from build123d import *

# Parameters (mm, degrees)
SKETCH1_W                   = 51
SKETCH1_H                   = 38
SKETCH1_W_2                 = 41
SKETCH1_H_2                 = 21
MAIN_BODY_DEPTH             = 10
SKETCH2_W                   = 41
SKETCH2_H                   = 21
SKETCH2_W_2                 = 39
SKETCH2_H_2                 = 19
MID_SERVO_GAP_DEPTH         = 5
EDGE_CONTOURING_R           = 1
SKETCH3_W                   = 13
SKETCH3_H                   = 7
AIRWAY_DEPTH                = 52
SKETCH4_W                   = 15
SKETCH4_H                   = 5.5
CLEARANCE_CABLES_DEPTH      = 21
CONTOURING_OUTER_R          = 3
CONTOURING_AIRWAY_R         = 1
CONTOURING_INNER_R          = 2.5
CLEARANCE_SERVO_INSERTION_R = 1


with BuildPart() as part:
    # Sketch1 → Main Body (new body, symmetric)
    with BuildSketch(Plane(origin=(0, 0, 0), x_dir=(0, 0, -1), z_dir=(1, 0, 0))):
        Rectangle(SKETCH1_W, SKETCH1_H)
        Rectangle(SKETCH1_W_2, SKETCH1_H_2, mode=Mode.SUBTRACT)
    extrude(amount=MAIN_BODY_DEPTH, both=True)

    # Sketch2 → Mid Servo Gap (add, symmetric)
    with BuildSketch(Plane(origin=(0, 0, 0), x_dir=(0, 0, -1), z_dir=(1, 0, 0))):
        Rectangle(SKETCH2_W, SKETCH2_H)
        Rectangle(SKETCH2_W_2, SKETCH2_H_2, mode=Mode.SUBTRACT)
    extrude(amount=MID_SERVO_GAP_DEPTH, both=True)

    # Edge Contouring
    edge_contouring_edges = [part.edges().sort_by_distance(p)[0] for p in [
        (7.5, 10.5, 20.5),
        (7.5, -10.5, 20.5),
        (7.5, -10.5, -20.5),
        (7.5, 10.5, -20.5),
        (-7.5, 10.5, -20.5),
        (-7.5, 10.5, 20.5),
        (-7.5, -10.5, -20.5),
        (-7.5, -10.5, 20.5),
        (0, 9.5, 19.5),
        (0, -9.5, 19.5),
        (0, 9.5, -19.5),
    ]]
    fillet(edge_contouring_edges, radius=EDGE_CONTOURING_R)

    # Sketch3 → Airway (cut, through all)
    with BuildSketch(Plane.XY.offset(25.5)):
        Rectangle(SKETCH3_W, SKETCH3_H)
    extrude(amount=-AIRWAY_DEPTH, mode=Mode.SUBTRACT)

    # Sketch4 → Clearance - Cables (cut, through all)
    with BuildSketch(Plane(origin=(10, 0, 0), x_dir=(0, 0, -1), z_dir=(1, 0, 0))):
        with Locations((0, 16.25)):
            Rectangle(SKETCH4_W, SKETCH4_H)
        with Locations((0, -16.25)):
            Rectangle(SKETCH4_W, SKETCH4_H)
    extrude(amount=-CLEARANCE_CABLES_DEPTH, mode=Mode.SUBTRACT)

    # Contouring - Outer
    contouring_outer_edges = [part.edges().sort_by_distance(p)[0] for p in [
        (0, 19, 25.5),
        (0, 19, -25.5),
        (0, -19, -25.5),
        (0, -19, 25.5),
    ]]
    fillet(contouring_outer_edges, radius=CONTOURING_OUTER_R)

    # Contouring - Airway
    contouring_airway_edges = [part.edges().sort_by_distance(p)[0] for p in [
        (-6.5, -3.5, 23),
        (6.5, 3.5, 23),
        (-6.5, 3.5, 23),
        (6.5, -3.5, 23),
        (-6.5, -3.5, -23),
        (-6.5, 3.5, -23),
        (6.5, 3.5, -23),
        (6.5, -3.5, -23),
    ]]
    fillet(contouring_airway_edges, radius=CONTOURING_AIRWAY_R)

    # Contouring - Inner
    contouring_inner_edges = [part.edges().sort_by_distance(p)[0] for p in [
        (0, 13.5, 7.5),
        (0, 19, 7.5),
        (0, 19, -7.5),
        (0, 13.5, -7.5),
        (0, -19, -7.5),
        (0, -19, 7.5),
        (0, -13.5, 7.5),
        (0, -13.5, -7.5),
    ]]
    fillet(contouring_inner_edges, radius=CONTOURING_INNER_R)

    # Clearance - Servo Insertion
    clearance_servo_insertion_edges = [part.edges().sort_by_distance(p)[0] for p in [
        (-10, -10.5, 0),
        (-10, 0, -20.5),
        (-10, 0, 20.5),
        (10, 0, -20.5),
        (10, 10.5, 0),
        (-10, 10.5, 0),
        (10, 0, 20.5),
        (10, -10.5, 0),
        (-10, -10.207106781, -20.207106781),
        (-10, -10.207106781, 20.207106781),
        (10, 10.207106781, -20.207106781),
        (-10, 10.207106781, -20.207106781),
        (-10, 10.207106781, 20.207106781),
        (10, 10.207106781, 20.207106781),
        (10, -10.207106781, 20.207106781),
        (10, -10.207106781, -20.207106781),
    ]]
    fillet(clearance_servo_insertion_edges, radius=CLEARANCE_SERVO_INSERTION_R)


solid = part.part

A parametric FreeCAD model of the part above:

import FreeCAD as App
import Part
import Sketcher


def edges_at(feature, points):
    """Names of the edges that pass closest to the given points."""
    edges = feature.Shape.Edges
    near = lambda p: min(range(len(edges)), key=lambda i: edges[i].distToShape(Part.Vertex(*p))[0])
    return sorted({f"Edge{near(p) + 1}" for p in points})


def add_polygon(sketch, points):
    """Adds a closed chain of lines whose ends are joined by coincident constraints."""
    first, n = sketch.GeometryCount, len(points)
    for a, b in zip(points, points[1:] + points[:1]):
        sketch.addGeometry(Part.LineSegment(App.Vector(*a, 0), App.Vector(*b, 0)), False)
    for i in range(n):
        sketch.addConstraint(Sketcher.Constraint("Coincident", first + i, 2, first + (i + 1) % n, 1))

doc = App.newDocument("Part")
body = doc.addObject("PartDesign::Body", "Body")

# Sketch on YZ plane
sketch1 = body.newObject("Sketcher::SketchObject", "Sketch")
sketch1.AttachmentSupport = (doc.getObject("YZ_Plane"), [""])
sketch1.MapMode = "FlatFace"
add_polygon(sketch1, [(19, 25.5), (-19, 25.5), (-19, -25.5), (19, -25.5)])  # lines 0-3
add_polygon(sketch1, [(-10.5, -20.5), (-10.5, 20.5), (10.5, 20.5), (10.5, -20.5)])  # lines 4-7
sketch1.addConstraint(Sketcher.Constraint("Horizontal", 0))
sketch1.addConstraint(Sketcher.Constraint("Vertical", 1))
sketch1.addConstraint(Sketcher.Constraint("Horizontal", 2))
sketch1.addConstraint(Sketcher.Constraint("Vertical", 3))
sketch1.addConstraint(Sketcher.Constraint("Vertical", 4))
sketch1.addConstraint(Sketcher.Constraint("Horizontal", 5))
sketch1.addConstraint(Sketcher.Constraint("Vertical", 6))
sketch1.addConstraint(Sketcher.Constraint("Horizontal", 7))
sketch1.addConstraint(Sketcher.Constraint("Symmetric", 0, 2, 2, 2, -1, 1))
sketch1.addConstraint(Sketcher.Constraint("Symmetric", 4, 2, 6, 2, -1, 1))
sketch1.addConstraint(Sketcher.Constraint("DistanceX", 0, 2, 0, 1, 38.0))
sketch1.addConstraint(Sketcher.Constraint("DistanceX", 5, 1, 5, 2, 21.0))
sketch1.addConstraint(Sketcher.Constraint("DistanceY", 1, 2, 1, 1, 51.0))
sketch1.addConstraint(Sketcher.Constraint("DistanceY", 4, 1, 4, 2, 41.0))
pad1 = body.newObject("PartDesign::Pad", "Pad")
pad1.Profile = sketch1
pad1.Length = 20
pad1.Midplane = True

# Sketch on YZ plane
sketch2 = body.newObject("Sketcher::SketchObject", "Sketch001")
sketch2.AttachmentSupport = (doc.getObject("YZ_Plane"), [""])
sketch2.MapMode = "FlatFace"
add_polygon(sketch2, [(10.5, 20.5), (-10.5, 20.5), (-10.5, -20.5), (10.5, -20.5)])  # lines 0-3
add_polygon(sketch2, [(-9.5, -19.5), (-9.5, 19.5), (9.5, 19.5), (9.5, -19.5)])  # lines 4-7
sketch2.addConstraint(Sketcher.Constraint("Horizontal", 0))
sketch2.addConstraint(Sketcher.Constraint("Vertical", 1))
sketch2.addConstraint(Sketcher.Constraint("Horizontal", 2))
sketch2.addConstraint(Sketcher.Constraint("Vertical", 3))
sketch2.addConstraint(Sketcher.Constraint("Vertical", 4))
sketch2.addConstraint(Sketcher.Constraint("Horizontal", 5))
sketch2.addConstraint(Sketcher.Constraint("Vertical", 6))
sketch2.addConstraint(Sketcher.Constraint("Horizontal", 7))
sketch2.addConstraint(Sketcher.Constraint("Symmetric", 0, 2, 2, 2, -1, 1))
sketch2.addConstraint(Sketcher.Constraint("Symmetric", 4, 2, 6, 2, -1, 1))
sketch2.addConstraint(Sketcher.Constraint("DistanceX", 0, 2, 0, 1, 21.0))
sketch2.addConstraint(Sketcher.Constraint("DistanceX", 5, 1, 5, 2, 19.0))
sketch2.addConstraint(Sketcher.Constraint("DistanceY", 1, 2, 1, 1, 41.0))
sketch2.addConstraint(Sketcher.Constraint("DistanceY", 4, 1, 4, 2, 39.0))
pad2 = body.newObject("PartDesign::Pad", "Pad001")
pad2.Profile = sketch2
pad2.Length = 10
pad2.Midplane = True
doc.recompute()

fillet = body.newObject("PartDesign::Fillet", "Fillet")
fillet.Base = (pad2, edges_at(pad2, [
    (7.5, 10.5, 20.5),
    (7.5, -10.5, 20.5),
    (7.5, -10.5, -20.5),
    (7.5, 10.5, -20.5),
    (-7.5, 10.5, -20.5),
    (-7.5, 10.5, 20.5),
    (-7.5, -10.5, -20.5),
    (-7.5, -10.5, 20.5),
    (0, 9.5, 19.5),
    (0, -9.5, 19.5),
    (0, 9.5, -19.5),
]))
fillet.Radius = 1

# Sketch on XY plane
sketch3 = body.newObject("Sketcher::SketchObject", "Sketch002")
sketch3.AttachmentSupport = (doc.getObject("XY_Plane"), [""])
sketch3.MapMode = "FlatFace"
sketch3.AttachmentOffset = App.Placement(App.Vector(0, 0, 25.5), App.Rotation())
add_polygon(sketch3, [(-6.5, 3.5), (-6.5, -3.5), (6.5, -3.5), (6.5, 3.5)])  # lines 0-3
sketch3.addConstraint(Sketcher.Constraint("Vertical", 0))
sketch3.addConstraint(Sketcher.Constraint("Horizontal", 1))
sketch3.addConstraint(Sketcher.Constraint("Vertical", 2))
sketch3.addConstraint(Sketcher.Constraint("Horizontal", 3))
sketch3.addConstraint(Sketcher.Constraint("Symmetric", 0, 2, 2, 2, -1, 1))
sketch3.addConstraint(Sketcher.Constraint("DistanceX", 1, 1, 1, 2, 13.0))
sketch3.addConstraint(Sketcher.Constraint("DistanceY", 0, 2, 0, 1, 7.0))
pocket1 = body.newObject("PartDesign::Pocket", "Pocket")
pocket1.Profile = sketch3
pocket1.Type = "ThroughAll"

# Sketch on YZ plane
sketch4 = body.newObject("Sketcher::SketchObject", "Sketch003")
sketch4.AttachmentSupport = (doc.getObject("YZ_Plane"), [""])
sketch4.MapMode = "FlatFace"
sketch4.AttachmentOffset = App.Placement(App.Vector(0, 0, 10), App.Rotation())
add_polygon(sketch4, [(19, 7.5), (13.5, 7.5), (13.5, -7.5), (19, -7.5)])  # lines 0-3
add_polygon(sketch4, [(-13.5, 7.5), (-19, 7.5), (-19, -7.5), (-13.5, -7.5)])  # lines 4-7
sketch4.addConstraint(Sketcher.Constraint("Horizontal", 0))
sketch4.addConstraint(Sketcher.Constraint("Vertical", 1))
sketch4.addConstraint(Sketcher.Constraint("Horizontal", 2))
sketch4.addConstraint(Sketcher.Constraint("Vertical", 3))
sketch4.addConstraint(Sketcher.Constraint("Horizontal", 4))
sketch4.addConstraint(Sketcher.Constraint("Vertical", 5))
sketch4.addConstraint(Sketcher.Constraint("Horizontal", 6))
sketch4.addConstraint(Sketcher.Constraint("Vertical", 7))
sketch4.addConstraint(Sketcher.Constraint("Symmetric", 2, 2, 4, 2, -1, 1))
sketch4.addConstraint(Sketcher.Constraint("Symmetric", 0, 2, 6, 2, -1, 1))
sketch4.addConstraint(Sketcher.Constraint("Horizontal", 3, 2, 4, 2))
sketch4.addConstraint(Sketcher.Constraint("DistanceY", 1, 2, 1, 1, 15.0))
sketch4.addConstraint(Sketcher.Constraint("DistanceX", 0, 2, 0, 1, 5.5))
sketch4.addConstraint(Sketcher.Constraint("DistanceX", -1, 1, 2, 2, 19.0))
pocket2 = body.newObject("PartDesign::Pocket", "Pocket001")
pocket2.Profile = sketch4
pocket2.Type = "ThroughAll"
doc.recompute()

fillet2 = body.newObject("PartDesign::Fillet", "Fillet001")
fillet2.Base = (pocket2, edges_at(pocket2, [
    (0, 19, 25.5),
    (0, 19, -25.5),
    (0, -19, -25.5),
    (0, -19, 25.5),
]))
fillet2.Radius = 3
doc.recompute()

fillet3 = body.newObject("PartDesign::Fillet", "Fillet002")
fillet3.Base = (fillet2, edges_at(fillet2, [
    (-6.5, -3.5, 23),
    (6.5, 3.5, 23),
    (-6.5, 3.5, 23),
    (6.5, -3.5, 23),
    (-6.5, -3.5, -23),
    (-6.5, 3.5, -23),
    (6.5, 3.5, -23),
    (6.5, -3.5, -23),
]))
fillet3.Radius = 1
doc.recompute()

fillet4 = body.newObject("PartDesign::Fillet", "Fillet003")
fillet4.Base = (fillet3, edges_at(fillet3, [
    (0, 13.5, 7.5),
    (0, 19, 7.5),
    (0, 19, -7.5),
    (0, 13.5, -7.5),
    (0, -19, -7.5),
    (0, -19, 7.5),
    (0, -13.5, 7.5),
    (0, -13.5, -7.5),
]))
fillet4.Radius = 2.5
doc.recompute()

fillet5 = body.newObject("PartDesign::Fillet", "Fillet004")
fillet5.Base = (fillet4, edges_at(fillet4, [
    (-10, -10.5, 0),
    (-10, 0, -20.5),
    (-10, 0, 20.5),
    (10, 0, -20.5),
    (10, 10.5, 0),
    (-10, 10.5, 0),
    (10, 0, 20.5),
    (10, -10.5, 0),
    (-10, -10.207, -20.207),
    (-10, -10.207, 20.207),
    (10, 10.207, -20.207),
    (-10, 10.207, -20.207),
    (-10, 10.207, 20.207),
    (10, 10.207, 20.207),
    (10, -10.207, 20.207),
    (10, -10.207, -20.207),
]))
fillet5.Radius = 1

doc.recompute()
